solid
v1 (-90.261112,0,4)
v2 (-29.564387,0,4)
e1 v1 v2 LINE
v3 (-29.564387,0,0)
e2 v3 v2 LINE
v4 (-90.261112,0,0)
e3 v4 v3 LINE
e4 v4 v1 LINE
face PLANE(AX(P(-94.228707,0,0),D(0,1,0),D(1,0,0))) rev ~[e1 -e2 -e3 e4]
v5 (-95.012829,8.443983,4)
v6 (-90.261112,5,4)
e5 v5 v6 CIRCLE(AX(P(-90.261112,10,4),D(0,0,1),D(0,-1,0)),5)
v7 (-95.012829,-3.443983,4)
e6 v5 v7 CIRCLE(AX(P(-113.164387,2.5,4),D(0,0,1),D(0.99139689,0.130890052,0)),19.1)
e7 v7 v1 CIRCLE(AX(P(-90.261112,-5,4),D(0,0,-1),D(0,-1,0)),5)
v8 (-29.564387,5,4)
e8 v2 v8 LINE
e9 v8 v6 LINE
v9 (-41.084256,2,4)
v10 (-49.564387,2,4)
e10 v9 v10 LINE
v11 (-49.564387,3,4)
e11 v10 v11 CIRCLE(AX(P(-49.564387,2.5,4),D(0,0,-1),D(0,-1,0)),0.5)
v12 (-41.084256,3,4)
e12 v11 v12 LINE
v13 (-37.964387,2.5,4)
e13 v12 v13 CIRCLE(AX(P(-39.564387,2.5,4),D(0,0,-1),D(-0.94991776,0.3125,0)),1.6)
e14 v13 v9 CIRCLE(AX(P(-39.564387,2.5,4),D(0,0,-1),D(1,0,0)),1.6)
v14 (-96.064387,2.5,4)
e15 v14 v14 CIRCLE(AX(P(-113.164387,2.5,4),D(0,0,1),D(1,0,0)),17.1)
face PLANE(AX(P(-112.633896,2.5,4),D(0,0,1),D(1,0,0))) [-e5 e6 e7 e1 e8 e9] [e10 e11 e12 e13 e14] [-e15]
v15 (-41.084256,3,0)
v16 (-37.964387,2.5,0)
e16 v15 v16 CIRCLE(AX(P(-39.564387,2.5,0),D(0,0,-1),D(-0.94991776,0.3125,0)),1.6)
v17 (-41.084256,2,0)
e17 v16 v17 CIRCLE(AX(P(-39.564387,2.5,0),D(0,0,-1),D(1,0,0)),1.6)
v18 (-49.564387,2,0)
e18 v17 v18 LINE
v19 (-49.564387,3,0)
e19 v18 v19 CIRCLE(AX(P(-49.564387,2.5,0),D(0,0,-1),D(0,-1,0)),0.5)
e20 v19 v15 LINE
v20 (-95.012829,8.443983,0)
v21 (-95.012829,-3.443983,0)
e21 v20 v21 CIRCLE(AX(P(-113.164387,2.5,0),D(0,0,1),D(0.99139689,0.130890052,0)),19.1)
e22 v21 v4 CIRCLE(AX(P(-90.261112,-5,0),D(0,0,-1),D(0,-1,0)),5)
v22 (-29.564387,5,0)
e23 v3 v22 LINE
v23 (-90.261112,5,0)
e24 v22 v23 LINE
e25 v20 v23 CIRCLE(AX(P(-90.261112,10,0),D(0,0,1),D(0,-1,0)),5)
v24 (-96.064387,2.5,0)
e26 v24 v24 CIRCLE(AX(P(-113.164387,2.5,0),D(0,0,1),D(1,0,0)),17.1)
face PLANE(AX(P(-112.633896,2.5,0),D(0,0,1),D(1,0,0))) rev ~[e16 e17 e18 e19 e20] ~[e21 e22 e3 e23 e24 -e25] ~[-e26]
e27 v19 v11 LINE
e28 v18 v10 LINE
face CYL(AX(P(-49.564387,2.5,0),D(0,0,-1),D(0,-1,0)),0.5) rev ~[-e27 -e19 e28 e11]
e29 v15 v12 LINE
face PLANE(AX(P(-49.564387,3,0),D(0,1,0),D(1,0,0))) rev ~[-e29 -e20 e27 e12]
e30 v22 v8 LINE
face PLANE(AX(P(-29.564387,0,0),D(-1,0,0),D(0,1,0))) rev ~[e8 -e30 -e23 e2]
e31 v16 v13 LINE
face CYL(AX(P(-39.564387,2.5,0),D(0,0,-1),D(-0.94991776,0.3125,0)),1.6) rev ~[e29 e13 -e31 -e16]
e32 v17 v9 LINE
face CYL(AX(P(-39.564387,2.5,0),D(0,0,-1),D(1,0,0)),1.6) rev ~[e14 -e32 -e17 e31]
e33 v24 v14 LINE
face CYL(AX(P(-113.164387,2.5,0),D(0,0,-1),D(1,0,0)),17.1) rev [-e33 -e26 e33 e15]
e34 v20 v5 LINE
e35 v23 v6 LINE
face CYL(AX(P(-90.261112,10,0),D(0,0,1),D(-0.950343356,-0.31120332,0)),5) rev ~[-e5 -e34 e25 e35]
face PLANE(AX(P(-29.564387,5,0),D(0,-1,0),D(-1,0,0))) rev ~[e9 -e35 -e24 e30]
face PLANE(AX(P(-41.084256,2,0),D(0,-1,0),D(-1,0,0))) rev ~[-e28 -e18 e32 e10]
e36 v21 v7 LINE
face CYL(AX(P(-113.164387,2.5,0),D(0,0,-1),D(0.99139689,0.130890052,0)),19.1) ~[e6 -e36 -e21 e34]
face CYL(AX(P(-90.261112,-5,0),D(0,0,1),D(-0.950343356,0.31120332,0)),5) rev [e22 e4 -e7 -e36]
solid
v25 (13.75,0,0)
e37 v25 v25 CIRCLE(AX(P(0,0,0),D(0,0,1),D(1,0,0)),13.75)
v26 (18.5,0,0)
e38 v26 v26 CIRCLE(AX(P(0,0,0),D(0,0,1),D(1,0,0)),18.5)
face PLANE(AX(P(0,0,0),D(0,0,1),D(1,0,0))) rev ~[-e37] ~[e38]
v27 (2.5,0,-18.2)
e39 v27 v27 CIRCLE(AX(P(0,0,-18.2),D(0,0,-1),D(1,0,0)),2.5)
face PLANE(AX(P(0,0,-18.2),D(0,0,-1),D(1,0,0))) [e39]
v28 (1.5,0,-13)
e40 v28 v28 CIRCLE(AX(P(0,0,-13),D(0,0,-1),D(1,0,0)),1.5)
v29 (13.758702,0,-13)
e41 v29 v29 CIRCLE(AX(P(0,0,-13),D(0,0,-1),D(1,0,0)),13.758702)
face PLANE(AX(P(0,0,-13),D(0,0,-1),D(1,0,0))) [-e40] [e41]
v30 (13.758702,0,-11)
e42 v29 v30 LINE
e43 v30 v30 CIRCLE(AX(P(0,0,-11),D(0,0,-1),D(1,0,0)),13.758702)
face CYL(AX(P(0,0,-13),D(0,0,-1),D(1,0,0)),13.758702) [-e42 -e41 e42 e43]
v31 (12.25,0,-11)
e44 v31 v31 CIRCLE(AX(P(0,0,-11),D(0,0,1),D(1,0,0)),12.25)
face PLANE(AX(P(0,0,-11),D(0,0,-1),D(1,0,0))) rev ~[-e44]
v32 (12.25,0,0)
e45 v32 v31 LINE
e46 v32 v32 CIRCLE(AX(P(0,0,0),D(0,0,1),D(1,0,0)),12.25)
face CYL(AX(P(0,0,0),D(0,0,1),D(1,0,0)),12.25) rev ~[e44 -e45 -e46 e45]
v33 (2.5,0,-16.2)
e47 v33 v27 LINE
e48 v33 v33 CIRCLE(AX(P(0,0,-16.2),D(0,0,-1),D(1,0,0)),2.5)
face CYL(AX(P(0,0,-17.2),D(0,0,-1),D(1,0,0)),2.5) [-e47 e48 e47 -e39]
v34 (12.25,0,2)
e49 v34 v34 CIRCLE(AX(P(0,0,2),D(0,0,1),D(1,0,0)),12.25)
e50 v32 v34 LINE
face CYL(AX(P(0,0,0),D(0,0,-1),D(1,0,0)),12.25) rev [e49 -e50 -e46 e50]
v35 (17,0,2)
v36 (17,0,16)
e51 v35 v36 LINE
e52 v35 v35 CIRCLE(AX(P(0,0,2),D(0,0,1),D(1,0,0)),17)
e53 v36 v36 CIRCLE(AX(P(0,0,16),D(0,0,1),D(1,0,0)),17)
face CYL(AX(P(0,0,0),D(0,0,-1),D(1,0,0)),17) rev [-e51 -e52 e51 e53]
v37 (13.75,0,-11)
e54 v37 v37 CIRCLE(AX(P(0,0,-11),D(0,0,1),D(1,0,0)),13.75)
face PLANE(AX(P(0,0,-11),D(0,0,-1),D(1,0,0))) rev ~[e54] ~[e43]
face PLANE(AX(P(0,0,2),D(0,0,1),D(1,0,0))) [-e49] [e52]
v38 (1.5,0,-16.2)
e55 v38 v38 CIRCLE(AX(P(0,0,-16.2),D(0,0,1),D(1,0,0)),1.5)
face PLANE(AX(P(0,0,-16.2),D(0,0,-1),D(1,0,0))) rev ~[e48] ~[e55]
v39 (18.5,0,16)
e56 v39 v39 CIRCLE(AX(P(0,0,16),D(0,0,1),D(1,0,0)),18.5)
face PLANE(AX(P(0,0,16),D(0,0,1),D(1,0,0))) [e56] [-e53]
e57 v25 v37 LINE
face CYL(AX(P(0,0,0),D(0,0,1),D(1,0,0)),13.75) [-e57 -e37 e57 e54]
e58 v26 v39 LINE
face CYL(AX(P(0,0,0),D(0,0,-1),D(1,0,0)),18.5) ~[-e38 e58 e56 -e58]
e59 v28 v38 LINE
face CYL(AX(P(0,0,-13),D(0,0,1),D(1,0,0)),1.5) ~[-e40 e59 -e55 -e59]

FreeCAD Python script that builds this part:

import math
import FreeCAD as App
import Part
import Sketcher

V = App.Vector


def edges_at(feature, points):
    """Names of the edges that pass closest to the given points."""
    edges = feature.Shape.Edges
    near = lambda p: min(range(len(edges)), key=lambda i: edges[i].distToShape(Part.Vertex(*p))[0])
    return sorted({f"Edge{near(p) + 1}" for p in points})

doc = App.newDocument("Part")
body = doc.addObject("PartDesign::Body", "Body")

# Sketch on XY plane
sketch1 = doc.addObject("Sketcher::SketchObject", "Sketch")
body.addObject(sketch1)
sketch1.AttachmentSupport = (doc.XY_Plane, [""])
sketch1.MapMode = "FlatFace"
sketch1.addGeometry([
    Part.Circle(V(0, 0, 0), V(0, 0, 1), 18),
    Part.Circle(V(0, 0, 0), V(0, 0, 1), 17),
], False)
sketch1.addConstraint([
    Sketcher.Constraint("Coincident", 0, 3, -1, 1),
    Sketcher.Constraint("Coincident", 1, 3, -1, 1),
    Sketcher.Constraint("Diameter", 0, 37.0),
    Sketcher.Constraint("Diameter", 1, 34.0),
])
pad1 = doc.addObject("PartDesign::Pad", "Pad")
body.addObject(pad1)
pad1.Profile = sketch1
pad1.Length = 16
body2 = doc.addObject("PartDesign::Body", "Body001")

# Sketch on XY plane
sketch2 = doc.addObject("Sketcher::SketchObject", "Sketch001")
body2.addObject(sketch2)
sketch2.AttachmentSupport = (doc.getObject("XY_Plane001"), [""])
sketch2.MapMode = "FlatFace"
sketch2.addGeometry([
    Part.Circle(V(0, 0, 0), V(0, 0, 1), 14),
    Part.Circle(V(0, 0, 0), V(0, 0, 1), 12),
], False)
sketch2.addConstraint([
    Sketcher.Constraint("Coincident", 0, 3, -1, 1),
    Sketcher.Constraint("Coincident", 1, 3, -1, 1),
    Sketcher.Constraint("Diameter", 0, 27.5),
    Sketcher.Constraint("Diameter", 1, 24.5),
])
pad2 = doc.addObject("PartDesign::Pad", "Pad001")
body2.addObject(pad2)
pad2.Profile = sketch2
pad2.Length = 13
pad2.Reversed = True
body.AllowCompound = True
doc.recompute()

boolean = doc.addObject("PartDesign::Boolean", "Boolean")
body.addObject(boolean)
boolean.Type = "Fuse"
boolean.addObjects([body2])

# Sketch on XY plane
sketch3 = doc.addObject("Sketcher::SketchObject", "Sketch002")
body.addObject(sketch3)
sketch3.AttachmentSupport = (doc.XY_Plane, [""])
sketch3.MapMode = "FlatFace"
sketch3.addGeometry([
    Part.Circle(V(0, 0, 0), V(0, 0, 1), 17),
    Part.Circle(V(0, 0, 0), V(0, 0, 1), 14),
], False)
sketch3.addConstraint([
    Sketcher.Constraint("Coincident", 0, 3, -1, 1),
    Sketcher.Constraint("Coincident", 1, 3, -1, 1),
    Sketcher.Constraint("Diameter", 0, 34.0),
    Sketcher.Constraint("Diameter", 1, 27.5),
])
pad3 = doc.addObject("PartDesign::Pad", "Pad002")
body.addObject(pad3)
pad3.Profile = sketch3
pad3.Length = 2

# Sketch on XY plane
sketch4 = doc.addObject("Sketcher::SketchObject", "Sketch003")
body.addObject(sketch4)
sketch4.AttachmentSupport = (doc.XY_Plane, [""])
sketch4.MapMode = "FlatFace"
sketch4.AttachmentOffset = App.Placement(V(0, 0, -13), App.Rotation())
sketch4.addGeometry(Part.Circle(V(0, 0, 0), V(0, 0, 1), 14), False)
sketch4.addConstraint([
    Sketcher.Constraint("Coincident", 0, 3, -1, 1),
    Sketcher.Constraint("Diameter", 0, 27.517404),
])
pad4 = doc.addObject("PartDesign::Pad", "Pad003")
body.addObject(pad4)
pad4.Profile = sketch4
pad4.Length = 2

# Sketch on XY plane
sketch5 = doc.addObject("Sketcher::SketchObject", "Sketch004")
body.addObject(sketch5)
sketch5.AttachmentSupport = (doc.XY_Plane, [""])
sketch5.MapMode = "FlatFace"
sketch5.addGeometry([
    Part.Circle(V(0, 0, 0), V(0, 0, 1), 14),
    Part.Circle(V(0, 0, 0), V(0, 0, 1), 12),
], False)
sketch5.addConstraint([
    Sketcher.Constraint("Coincident", 0, 3, -1, 1),
    Sketcher.Constraint("Coincident", 1, 3, -1, 1),
    Sketcher.Constraint("Diameter", 0, 27.5),
    Sketcher.Constraint("Diameter", 1, 24.5),
])
pad5 = doc.addObject("PartDesign::Pad", "Pad004")
body.addObject(pad5)
pad5.Profile = sketch5
pad5.Length = 2

# Sketch on XY plane
sketch6 = doc.addObject("Sketcher::SketchObject", "Sketch005")
body.addObject(sketch6)
sketch6.AttachmentSupport = (doc.XY_Plane, [""])
sketch6.MapMode = "FlatFace"
sketch6.AttachmentOffset = App.Placement(V(0, 0, -13), App.Rotation())
sketch6.addGeometry(Part.Circle(V(0, 0, 0), V(0, 0, 1), 1.5), False)
sketch6.addConstraint([
    Sketcher.Constraint("Coincident", 0, 3, -1, 1),
    Sketcher.Constraint("Diameter", 0, 3.0),
])
pad6 = doc.addObject("PartDesign::Pad", "Pad005")
body.addObject(pad6)
pad6.Profile = sketch6
pad6.Length = 4.2
pad6.Reversed = True

# Sketch on XY plane
sketch7 = doc.addObject("Sketcher::SketchObject", "Sketch006")
body.addObject(sketch7)
sketch7.AttachmentSupport = (doc.XY_Plane, [""])
sketch7.MapMode = "FlatFace"
sketch7.AttachmentOffset = App.Placement(V(0, 0, -17.2), App.Rotation())
sketch7.addGeometry(Part.Circle(V(0, 0, 0), V(0, 0, 1), 2.5), False)
sketch7.addConstraint([
    Sketcher.Constraint("Coincident", 0, 3, -1, 1),
    Sketcher.Constraint("Diameter", 0, 5.0),
])
pad7 = doc.addObject("PartDesign::Pad", "Pad006")
body.addObject(pad7)
pad7.Profile = sketch7
pad7.Length = 2
pad7.Midplane = True
body3 = doc.addObject("PartDesign::Body", "Body002")

# Sketch on XY plane
sketch8 = doc.addObject("Sketcher::SketchObject", "Sketch007")
body3.addObject(sketch8)
sketch8.AttachmentSupport = (doc.getObject("XY_Plane002"), [""])
sketch8.MapMode = "FlatFace"
sketch8.addGeometry([
    Part.ArcOfCircle(Part.Circle(V(-113.2, 2.5, 0), V(0, 0, 1), 19.1), math.radians(8), math.radians(352)),  # 0
    Part.LineSegment(V(-94.2, 0, 0), V(-29.6, 0, 0)),  # 1
    Part.LineSegment(V(-29.6, 0, 0), V(-29.6, 5, 0)),  # 2
    Part.LineSegment(V(-29.6, 5, 0), V(-94.2, 5, 0)),  # 3
    Part.Circle(V(-113.2, 2.5, 0), V(0, 0, 1), 17.1),  # 4
    Part.ArcOfCircle(Part.Circle(V(-39.6, 2.5, 0), V(0, 0, 1), 1.6), math.radians(-162), math.radians(0)),  # 5
    Part.LineSegment(V(-41.1, 2, 0), V(-49.6, 2, 0)),  # 6
    Part.ArcOfCircle(Part.Circle(V(-49.6, 2.5, 0), V(0, 0, 1), 0.5), math.radians(90), math.radians(270)),  # 7
    Part.LineSegment(V(-49.6, 3, 0), V(-41.1, 3, 0)),  # 8
    Part.ArcOfCircle(Part.Circle(V(-39.6, 2.5, 0), V(0, 0, 1), 1.6), math.radians(0), math.radians(162)),  # 9
], False)
sketch8.addConstraint([
    Sketcher.Constraint("Coincident", 0, 2, 1, 1),
    Sketcher.Constraint("Coincident", 1, 2, 2, 1),
    Sketcher.Constraint("Coincident", 2, 2, 3, 1),
    Sketcher.Constraint("Coincident", 3, 2, 0, 1),
    Sketcher.Constraint("Coincident", 5, 1, 6, 1),
    Sketcher.Constraint("Tangent", 6, 2, 7, 2),
    Sketcher.Constraint("Tangent", 7, 1, 8, 1),
    Sketcher.Constraint("Coincident", 8, 2, 9, 2),
    Sketcher.Constraint("Tangent", 9, 1, 5, 2),
    Sketcher.Constraint("Horizontal", 1),
    Sketcher.Constraint("Vertical", 2),
    Sketcher.Constraint("Horizontal", 3),
    Sketcher.Constraint("Horizontal", 6),
    Sketcher.Constraint("Horizontal", 8),
    Sketcher.Constraint("Coincident", 4, 3, 0, 3),
    Sketcher.Constraint("Equal", 5, 9),
    Sketcher.Constraint("PointOnObject", 0, 2, -1),
    Sketcher.Constraint("Horizontal", 4, 3, 5, 3),
    Sketcher.Constraint("Horizontal", 5, 3, 7, 3),
    Sketcher.Constraint("Horizontal", 7, 3, 9, 1),
    Sketcher.Constraint("Vertical", 0, 2, 3, 2),
    Sketcher.Constraint("Diameter", 4, 34.2),
    Sketcher.Constraint("Radius", 0, 19.1),
    Sketcher.Constraint("Radius", 5, 1.6),
    Sketcher.Constraint("Radius", 7, 0.5),
    Sketcher.Constraint("DistanceY", 2, 1, 2, 2, 5.0),
    Sketcher.Constraint("DistanceX", 7, 3, 5, 3, 10.0),
    Sketcher.Constraint("DistanceX", 5, 3, 1, 2, 10.0),
    Sketcher.Constraint("DistanceX", 0, 3, 5, 3, 73.6),
    Sketcher.Constraint("DistanceX", 0, 3, -1, 1, 113.164387),
])
pad8 = doc.addObject("PartDesign::Pad", "Pad007")
body3.addObject(pad8)
pad8.Profile = sketch8
pad8.Length = 4
doc.recompute()

fillet = doc.addObject("PartDesign::Fillet", "Fillet")
body3.addObject(fillet)
fillet.Base = (pad8, edges_at(pad8, [(-94.229, 5, 2), (-94.229, 0, 2)]))
fillet.Radius = 5

doc.recompute()
